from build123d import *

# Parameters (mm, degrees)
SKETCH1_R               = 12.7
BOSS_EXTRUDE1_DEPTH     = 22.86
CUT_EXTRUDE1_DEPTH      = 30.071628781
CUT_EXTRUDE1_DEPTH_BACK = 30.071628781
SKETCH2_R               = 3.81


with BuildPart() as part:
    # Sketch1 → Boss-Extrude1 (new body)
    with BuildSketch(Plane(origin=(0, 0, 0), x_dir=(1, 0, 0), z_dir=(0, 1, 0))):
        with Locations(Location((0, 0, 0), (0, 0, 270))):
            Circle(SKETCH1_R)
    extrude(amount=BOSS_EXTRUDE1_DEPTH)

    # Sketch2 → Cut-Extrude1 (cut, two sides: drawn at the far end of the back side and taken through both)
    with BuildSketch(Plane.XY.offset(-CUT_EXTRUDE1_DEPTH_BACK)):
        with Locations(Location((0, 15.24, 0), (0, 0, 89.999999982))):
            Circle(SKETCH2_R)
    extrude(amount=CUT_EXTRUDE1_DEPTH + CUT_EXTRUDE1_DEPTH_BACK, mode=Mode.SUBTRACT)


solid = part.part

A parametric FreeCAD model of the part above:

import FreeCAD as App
import Part
import Sketcher
Q = App.Units.Quantity

doc = App.newDocument("Part")
body = doc.addObject("PartDesign::Body", "Body")

# Sketch on XZ plane
sketch1 = body.newObject("Sketcher::SketchObject", "Sketch")
sketch1.AttachmentSupport = (doc.getObject("XZ_Plane"), [""])
sketch1.MapMode = "FlatFace"
sketch1.addGeometry(Part.Circle(App.Vector(0, 0, 0), App.Vector(0, 0, 1), 12.7), False)
sketch1.addConstraint(Sketcher.Constraint("Coincident", 0, 3, -1, 1))
sketch1.addConstraint(Sketcher.Constraint("Diameter", 0, Q("1 in")))
pad1 = body.newObject("PartDesign::Pad", "Pad")
pad1.Profile = sketch1
pad1.Length = Q("0.9 in")
pad1.Reversed = True

# Sketch on XY plane
sketch2 = body.newObject("Sketcher::SketchObject", "Sketch001")
sketch2.AttachmentSupport = (doc.getObject("XY_Plane"), [""])
sketch2.MapMode = "FlatFace"
sketch2.addGeometry(Part.Circle(App.Vector(0, 15.24, 0), App.Vector(0, 0, 1), 3.81), False)
sketch2.addConstraint(Sketcher.Constraint("PointOnObject", 0, 3, -2))
sketch2.addConstraint(Sketcher.Constraint("Diameter", 0, Q("0.3 in")))
sketch2.addConstraint(Sketcher.Constraint("DistanceY", -1, 1, 0, 3, Q("0.6 in")))
pocket1 = body.newObject("PartDesign::Pocket", "Pocket")
pocket1.Profile = sketch2
pocket1.Type = "ThroughAll"
pocket1.Midplane = True

doc.recompute()
